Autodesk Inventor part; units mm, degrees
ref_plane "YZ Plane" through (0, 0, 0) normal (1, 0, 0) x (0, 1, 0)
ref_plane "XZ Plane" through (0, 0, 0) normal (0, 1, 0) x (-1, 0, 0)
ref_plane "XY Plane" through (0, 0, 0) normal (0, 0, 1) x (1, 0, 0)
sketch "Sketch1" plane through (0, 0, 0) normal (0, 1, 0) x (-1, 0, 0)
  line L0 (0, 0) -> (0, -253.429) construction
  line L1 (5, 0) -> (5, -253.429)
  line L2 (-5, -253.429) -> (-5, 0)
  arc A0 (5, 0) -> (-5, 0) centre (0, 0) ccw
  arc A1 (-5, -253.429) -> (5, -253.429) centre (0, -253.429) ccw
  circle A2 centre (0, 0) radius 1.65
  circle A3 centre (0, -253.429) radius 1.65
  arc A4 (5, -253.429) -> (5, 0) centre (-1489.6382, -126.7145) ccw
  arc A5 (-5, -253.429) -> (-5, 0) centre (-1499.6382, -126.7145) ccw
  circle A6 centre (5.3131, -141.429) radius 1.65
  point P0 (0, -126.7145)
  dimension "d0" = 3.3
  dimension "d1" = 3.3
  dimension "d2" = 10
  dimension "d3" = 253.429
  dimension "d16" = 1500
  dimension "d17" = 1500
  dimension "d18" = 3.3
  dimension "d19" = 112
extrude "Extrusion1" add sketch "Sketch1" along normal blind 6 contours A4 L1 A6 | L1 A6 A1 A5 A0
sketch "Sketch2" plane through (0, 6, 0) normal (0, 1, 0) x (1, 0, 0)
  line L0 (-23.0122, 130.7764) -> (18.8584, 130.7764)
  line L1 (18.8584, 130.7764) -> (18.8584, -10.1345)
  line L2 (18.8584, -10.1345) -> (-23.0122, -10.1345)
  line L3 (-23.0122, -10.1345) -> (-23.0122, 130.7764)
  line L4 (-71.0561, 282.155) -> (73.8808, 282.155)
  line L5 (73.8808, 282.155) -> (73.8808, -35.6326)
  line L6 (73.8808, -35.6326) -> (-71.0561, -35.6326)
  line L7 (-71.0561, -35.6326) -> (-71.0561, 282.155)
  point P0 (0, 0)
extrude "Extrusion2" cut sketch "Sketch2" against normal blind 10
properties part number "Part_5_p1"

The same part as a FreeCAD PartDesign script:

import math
import FreeCAD as App
import Part
import Sketcher
from FreeCAD import Vector


def add_polygon(sketch, points):
    """Adds a closed chain of lines whose ends are joined by coincident constraints."""
    first, n = sketch.GeometryCount, len(points)
    for a, b in zip(points, points[1:] + points[:1]):
        sketch.addGeometry(Part.LineSegment(App.Vector(*a, 0), App.Vector(*b, 0)), False)
    for i in range(n):
        sketch.addConstraint(Sketcher.Constraint("Coincident", first + i, 2, first + (i + 1) % n, 1))

doc = App.newDocument("Part")
body = doc.addObject("PartDesign::Body", "Body")

# Sketch on XZ plane
sketch1 = body.newObject("Sketcher::SketchObject", "Sketch")
sketch1.AttachmentSupport = (doc.getObject("XZ_Plane"), [""])
sketch1.MapMode = "FlatFace"
sketch1.addGeometry(Part.ArcOfCircle(Part.Circle(Vector(1489.6, -126.7, 0), Vector(0, 0, 1), 1500), math.radians(175.15), math.radians(184.85)), False)
sketch1.addGeometry(Part.ArcOfCircle(Part.Circle(Vector(0, 0, 0), Vector(0, 0, 1), 5), math.radians(0), math.radians(180)), False)
sketch1.addGeometry(Part.ArcOfCircle(Part.Circle(Vector(1499.6, -126.7, 0), Vector(0, 0, 1), 1500), math.radians(175.15), math.radians(184.85)), False)
sketch1.addGeometry(Part.ArcOfCircle(Part.Circle(Vector(0, -253.4, 0), Vector(0, 0, 1), 5), math.radians(180), math.radians(360)), False)
sketch1.addGeometry(Part.Circle(Vector(-5.3, -141.4, 0), Vector(0, 0, 1), 1.6), False)
sketch1.addGeometry(Part.Circle(Vector(0, -253.4, 0), Vector(0, 0, 1), 1.6), False)
sketch1.addGeometry(Part.Circle(Vector(0, 0, 0), Vector(0, 0, 1), 1.6), False)
sketch1.addConstraint(Sketcher.Constraint("Coincident", 0, 1, 1, 2))
sketch1.addConstraint(Sketcher.Constraint("Coincident", 1, 1, 2, 1))
sketch1.addConstraint(Sketcher.Constraint("Coincident", 2, 2, 3, 2))
sketch1.addConstraint(Sketcher.Constraint("Coincident", 3, 1, 0, 2))
sketch1.addConstraint(Sketcher.Constraint("Coincident", 1, 3, -1, 1))
sketch1.addConstraint(Sketcher.Constraint("Coincident", 6, 3, -1, 1))
sketch1.addConstraint(Sketcher.Constraint("Coincident", 5, 3, 3, 3))
sketch1.addConstraint(Sketcher.Constraint("Equal", 0, 2))
sketch1.addConstraint(Sketcher.Constraint("Equal", 1, 3))
sketch1.addConstraint(Sketcher.Constraint("Equal", 4, 5))
sketch1.addConstraint(Sketcher.Constraint("Equal", 5, 6))
sketch1.addConstraint(Sketcher.Constraint("Symmetric", 2, 2, 3, 1, -2))
sketch1.addConstraint(Sketcher.Constraint("PointOnObject", 1, 1, -1))
sketch1.addConstraint(Sketcher.Constraint("Horizontal", 0, 3, 2, 3))
sketch1.addConstraint(Sketcher.Constraint("Radius", 0, 1500.0))
sketch1.addConstraint(Sketcher.Constraint("Radius", 1, 5.0))
sketch1.addConstraint(Sketcher.Constraint("Diameter", 4, 3.3))
sketch1.addConstraint(Sketcher.Constraint("DistanceY", 3, 3, 4, 3, 112.0))
sketch1.addConstraint(Sketcher.Constraint("DistanceY", 3, 1, 4, 3, 112.0))
sketch1.addConstraint(Sketcher.Constraint("DistanceY", 3, 3, -1, 1, 253.429))
sketch1.addConstraint(Sketcher.Constraint("DistanceX", 4, 3, -1, 1, 5.313))
pad1 = body.newObject("PartDesign::Pad", "Pad")
pad1.Profile = sketch1
pad1.Length = 6
pad1.Reversed = True

# Sketch on XZ plane
sketch2 = body.newObject("Sketcher::SketchObject", "Sketch001")
sketch2.AttachmentSupport = (doc.getObject("XZ_Plane"), [""])
sketch2.MapMode = "FlatFace"
sketch2.AttachmentOffset = App.Placement(Vector(0, 0, -6), App.Rotation())
add_polygon(sketch2, [(74, -282), (-71, -282), (-71, 36), (74, 36)])  # lines 0-3
add_polygon(sketch2, [(-23, 10), (-23, -131), (19, -131), (19, 10)])  # lines 4-7
sketch2.addConstraint(Sketcher.Constraint("Horizontal", 0))
sketch2.addConstraint(Sketcher.Constraint("Vertical", 1))
sketch2.addConstraint(Sketcher.Constraint("Horizontal", 2))
sketch2.addConstraint(Sketcher.Constraint("Vertical", 3))
sketch2.addConstraint(Sketcher.Constraint("Vertical", 4))
sketch2.addConstraint(Sketcher.Constraint("Horizontal", 5))
sketch2.addConstraint(Sketcher.Constraint("Vertical", 6))
sketch2.addConstraint(Sketcher.Constraint("Horizontal", 7))
sketch2.addConstraint(Sketcher.Constraint("DistanceX", 0, 2, 0, 1, 144.937))
sketch2.addConstraint(Sketcher.Constraint("DistanceY", 4, 2, 4, 1, 140.911))
sketch2.addConstraint(Sketcher.Constraint("DistanceX", 5, 1, 5, 2, 41.8706))
sketch2.addConstraint(Sketcher.Constraint("DistanceY", 1, 1, 1, 2, 317.7876))
sketch2.addConstraint(Sketcher.Constraint("DistanceX", 0, 2, -1, 1, 71.056))
sketch2.addConstraint(Sketcher.Constraint("DistanceY", 0, 2, -1, 1, 282.155))
sketch2.addConstraint(Sketcher.Constraint("DistanceX", 0, 2, 4, 2, 48.044))
sketch2.addConstraint(Sketcher.Constraint("DistanceY", 4, 2, 1, 2, 166.409))
pocket1 = body.newObject("PartDesign::Pocket", "Pocket")
pocket1.Profile = sketch2
pocket1.Length = 10
pocket1.Reversed = True

doc.recompute()
